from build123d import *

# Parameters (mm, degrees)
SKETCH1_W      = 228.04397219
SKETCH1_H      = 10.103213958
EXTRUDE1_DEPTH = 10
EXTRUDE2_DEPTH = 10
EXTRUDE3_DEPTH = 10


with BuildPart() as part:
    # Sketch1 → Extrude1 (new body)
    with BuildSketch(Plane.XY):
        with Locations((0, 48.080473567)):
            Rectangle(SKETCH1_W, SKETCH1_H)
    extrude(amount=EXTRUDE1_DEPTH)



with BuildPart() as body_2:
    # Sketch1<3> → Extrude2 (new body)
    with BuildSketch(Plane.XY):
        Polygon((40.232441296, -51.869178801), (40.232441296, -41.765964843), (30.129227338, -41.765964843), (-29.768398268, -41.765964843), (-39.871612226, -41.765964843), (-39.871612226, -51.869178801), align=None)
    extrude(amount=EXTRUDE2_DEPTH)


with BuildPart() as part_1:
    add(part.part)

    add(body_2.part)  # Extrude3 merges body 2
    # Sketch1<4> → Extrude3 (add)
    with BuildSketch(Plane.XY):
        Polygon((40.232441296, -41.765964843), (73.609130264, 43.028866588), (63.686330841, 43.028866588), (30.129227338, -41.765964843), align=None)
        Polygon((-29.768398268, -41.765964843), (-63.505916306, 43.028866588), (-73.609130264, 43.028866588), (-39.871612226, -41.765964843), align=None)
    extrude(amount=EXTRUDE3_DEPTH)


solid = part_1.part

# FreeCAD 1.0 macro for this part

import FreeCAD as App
import Part
import Sketcher

V = App.Vector

doc = App.newDocument("Part")
body = doc.addObject("PartDesign::Body", "Body")

# Sketch on XY plane
sketch1 = body.newObject("Sketcher::SketchObject", "Sketch")
sketch1.AttachmentSupport = (doc.getObject("XY_Plane"), [""])
sketch1.MapMode = "FlatFace"
sketch1.addGeometry([
    Part.LineSegment(V(-114, 53, 0), V(-114, 43, 0)),
    Part.LineSegment(V(-114, 43, 0), V(114, 43, 0)),
    Part.LineSegment(V(114, 43, 0), V(114, 53, 0)),
    Part.LineSegment(V(114, 53, 0), V(-114, 53, 0)),
], False)
sketch1.addConstraint([
    Sketcher.Constraint("Coincident", 0, 2, 1, 1),
    Sketcher.Constraint("Coincident", 1, 2, 2, 1),
    Sketcher.Constraint("Coincident", 2, 2, 3, 1),
    Sketcher.Constraint("Coincident", 3, 2, 0, 1),
    Sketcher.Constraint("Vertical", 0),
    Sketcher.Constraint("Horizontal", 1),
    Sketcher.Constraint("Vertical", 2),
    Sketcher.Constraint("Horizontal", 3),
    Sketcher.Constraint("DistanceX", 1, 1, 1, 2, 228.043972),
    Sketcher.Constraint("DistanceY", 0, 2, 0, 1, 10.103214),
    Sketcher.Constraint("DistanceY", -1, 1, 2, 2, 53.132081),
    Sketcher.Constraint("DistanceX", 0, 2, -1, 1, 114.021986),
])
pad1 = body.newObject("PartDesign::Pad", "Pad")
pad1.Profile = sketch1
pad1.Length = 10
body2 = doc.addObject("PartDesign::Body", "Body001")

# Sketch on XY plane
sketch2 = body2.newObject("Sketcher::SketchObject", "Sketch001")
sketch2.AttachmentSupport = (doc.getObject("XY_Plane001"), [""])
sketch2.MapMode = "FlatFace"
sketch2.addGeometry([
    Part.LineSegment(V(40, -52, 0), V(40, -42, 0)),
    Part.LineSegment(V(40, -42, 0), V(-40, -42, 0)),
    Part.LineSegment(V(-40, -42, 0), V(-40, -52, 0)),
    Part.LineSegment(V(-40, -52, 0), V(40, -52, 0)),
], False)
sketch2.addConstraint([
    Sketcher.Constraint("Coincident", 0, 2, 1, 1),
    Sketcher.Constraint("Coincident", 1, 2, 2, 1),
    Sketcher.Constraint("Coincident", 2, 2, 3, 1),
    Sketcher.Constraint("Coincident", 3, 2, 0, 1),
    Sketcher.Constraint("Vertical", 0),
    Sketcher.Constraint("Horizontal", 1),
    Sketcher.Constraint("Vertical", 2),
    Sketcher.Constraint("Horizontal", 3),
    Sketcher.Constraint("DistanceX", 1, 2, 1, 1, 80.104054),
    Sketcher.Constraint("DistanceY", 0, 1, 0, 2, 10.103214),
    Sketcher.Constraint("DistanceX", -1, 1, 0, 2, 40.232441),
    Sketcher.Constraint("DistanceY", 2, 2, -1, 1, 51.869179),
])
pad2 = body2.newObject("PartDesign::Pad", "Pad001")
pad2.Profile = sketch2
pad2.Length = 10
body.AllowCompound = True
doc.recompute()

boolean = body.newObject("PartDesign::Boolean", "Boolean")
boolean.Type = "Fuse"
boolean.addObjects([body2])

# Sketch on XY plane
sketch3 = body.newObject("Sketcher::SketchObject", "Sketch002")
sketch3.AttachmentSupport = (doc.getObject("XY_Plane"), [""])
sketch3.MapMode = "FlatFace"
sketch3.addGeometry([
    Part.LineSegment(V(40, -42, 0), V(74, 43, 0)),  # 0
    Part.LineSegment(V(74, 43, 0), V(64, 43, 0)),  # 1
    Part.LineSegment(V(64, 43, 0), V(30, -42, 0)),  # 2
    Part.LineSegment(V(30, -42, 0), V(40, -42, 0)),  # 3
    Part.LineSegment(V(-30, -42, 0), V(-64, 43, 0)),  # 4
    Part.LineSegment(V(-64, 43, 0), V(-74, 43, 0)),  # 5
    Part.LineSegment(V(-74, 43, 0), V(-40, -42, 0)),  # 6
    Part.LineSegment(V(-40, -42, 0), V(-30, -42, 0)),  # 7
], False)
sketch3.addConstraint([
    Sketcher.Constraint("Coincident", 0, 2, 1, 1),
    Sketcher.Constraint("Coincident", 1, 2, 2, 1),
    Sketcher.Constraint("Coincident", 2, 2, 3, 1),
    Sketcher.Constraint("Coincident", 3, 2, 0, 1),
    Sketcher.Constraint("Coincident", 4, 2, 5, 1),
    Sketcher.Constraint("Coincident", 5, 2, 6, 1),
    Sketcher.Constraint("Coincident", 6, 2, 7, 1),
    Sketcher.Constraint("Coincident", 7, 2, 4, 1),
    Sketcher.Constraint("Horizontal", 1),
    Sketcher.Constraint("Horizontal", 3),
    Sketcher.Constraint("Horizontal", 5),
    Sketcher.Constraint("Horizontal", 7),
    Sketcher.Constraint("Symmetric", 0, 2, 5, 2, -2),
    Sketcher.Constraint("Parallel", 4, 6),
    Sketcher.Constraint("Horizontal", 3, 2, 6, 2),
    Sketcher.Constraint("Equal", 3, 5),
    Sketcher.Constraint("DistanceX", 1, 2, 1, 1, 9.922799),
    Sketcher.Constraint("Distance", 0, 91.127201),
    Sketcher.Constraint("DistanceX", 7, 2, -1, 1, 29.768398),
    Sketcher.Constraint("DistanceX", 3, 1, 3, 2, 10.103214),
    Sketcher.Constraint("DistanceX", -1, 1, 0, 2, 73.60913),
    Sketcher.Constraint("DistanceX", -1, 1, 3, 2, 40.232441),
    Sketcher.Constraint("DistanceY", -1, 1, 0, 2, 43.028867),
])
pad3 = body.newObject("PartDesign::Pad", "Pad002")
pad3.Profile = sketch3
pad3.Length = 10

doc.recompute()
